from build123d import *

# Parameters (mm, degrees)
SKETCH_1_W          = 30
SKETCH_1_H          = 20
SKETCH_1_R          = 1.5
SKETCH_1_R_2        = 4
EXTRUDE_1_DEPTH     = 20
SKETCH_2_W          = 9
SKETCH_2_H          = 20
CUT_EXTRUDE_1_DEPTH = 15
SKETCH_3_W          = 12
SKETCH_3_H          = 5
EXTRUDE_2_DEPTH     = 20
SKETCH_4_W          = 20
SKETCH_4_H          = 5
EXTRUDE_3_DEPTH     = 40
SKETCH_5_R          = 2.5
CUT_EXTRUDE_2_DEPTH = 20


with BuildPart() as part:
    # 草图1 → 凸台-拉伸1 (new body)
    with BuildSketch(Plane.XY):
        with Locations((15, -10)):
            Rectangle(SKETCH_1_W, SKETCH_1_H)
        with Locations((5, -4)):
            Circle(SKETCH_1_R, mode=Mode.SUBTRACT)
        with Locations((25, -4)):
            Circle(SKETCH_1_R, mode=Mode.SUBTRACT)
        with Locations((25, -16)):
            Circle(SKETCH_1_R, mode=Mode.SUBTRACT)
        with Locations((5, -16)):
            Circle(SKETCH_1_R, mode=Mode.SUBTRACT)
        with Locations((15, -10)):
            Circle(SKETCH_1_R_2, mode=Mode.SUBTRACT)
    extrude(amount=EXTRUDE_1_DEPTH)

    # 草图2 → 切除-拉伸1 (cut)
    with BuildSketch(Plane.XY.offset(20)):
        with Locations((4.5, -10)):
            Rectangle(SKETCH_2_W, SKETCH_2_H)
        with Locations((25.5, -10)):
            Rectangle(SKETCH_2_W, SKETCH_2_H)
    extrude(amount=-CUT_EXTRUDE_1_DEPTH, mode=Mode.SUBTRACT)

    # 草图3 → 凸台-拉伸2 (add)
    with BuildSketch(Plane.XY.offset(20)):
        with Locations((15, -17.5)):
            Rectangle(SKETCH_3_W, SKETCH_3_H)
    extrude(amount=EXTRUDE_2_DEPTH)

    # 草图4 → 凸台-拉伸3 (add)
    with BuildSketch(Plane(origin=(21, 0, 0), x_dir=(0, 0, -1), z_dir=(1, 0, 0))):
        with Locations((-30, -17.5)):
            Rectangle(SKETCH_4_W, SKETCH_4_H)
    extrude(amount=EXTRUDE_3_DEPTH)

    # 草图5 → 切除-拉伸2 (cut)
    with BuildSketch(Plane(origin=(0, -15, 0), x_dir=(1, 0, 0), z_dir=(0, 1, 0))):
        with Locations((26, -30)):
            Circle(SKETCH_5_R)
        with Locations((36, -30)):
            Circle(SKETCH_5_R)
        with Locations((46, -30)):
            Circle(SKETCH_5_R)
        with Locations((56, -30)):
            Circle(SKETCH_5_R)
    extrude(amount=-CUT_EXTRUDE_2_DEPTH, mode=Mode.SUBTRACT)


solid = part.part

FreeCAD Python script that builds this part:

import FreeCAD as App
import Part
import Sketcher
Q = App.Units.Quantity

doc = App.newDocument("Part")
body = doc.addObject("PartDesign::Body", "Body")

# Sketch on XY plane
sketch1 = body.newObject("Sketcher::SketchObject", "Sketch")
sketch1.AttachmentSupport = (doc.getObject("XY_Plane"), [""])
sketch1.MapMode = "FlatFace"
sketch1.addGeometry([
    Part.LineSegment(App.Vector(0, 0, 0), App.Vector(0, -20, 0)),  # 0
    Part.LineSegment(App.Vector(0, -20, 0), App.Vector(30, -20, 0)),  # 1
    Part.LineSegment(App.Vector(30, -20, 0), App.Vector(30, 0, 0)),  # 2
    Part.LineSegment(App.Vector(30, 0, 0), App.Vector(0, 0, 0)),  # 3
    Part.Circle(App.Vector(5, -16, 0), App.Vector(0, 0, 1), 1.5),  # 4
    Part.Circle(App.Vector(25, -16, 0), App.Vector(0, 0, 1), 1.5),  # 5
    Part.Circle(App.Vector(5, -4, 0), App.Vector(0, 0, 1), 1.5),  # 6
    Part.Circle(App.Vector(15, -10, 0), App.Vector(0, 0, 1), 4),  # 7
    Part.Circle(App.Vector(25, -4, 0), App.Vector(0, 0, 1), 1.5),  # 8
], False)
sketch1.addConstraint([
    Sketcher.Constraint("Coincident", 0, 2, 1, 1),
    Sketcher.Constraint("Coincident", 1, 2, 2, 1),
    Sketcher.Constraint("Coincident", 2, 2, 3, 1),
    Sketcher.Constraint("Coincident", 3, 2, 0, 1),
    Sketcher.Constraint("Vertical", 0),
    Sketcher.Constraint("Horizontal", 1),
    Sketcher.Constraint("Vertical", 2),
    Sketcher.Constraint("Horizontal", 3),
    Sketcher.Constraint("Coincident", 3, 2, -1, 1),
    Sketcher.Constraint("Equal", 4, 5),
    Sketcher.Constraint("Equal", 5, 6),
    Sketcher.Constraint("Equal", 6, 8),
    Sketcher.Constraint("Horizontal", 4, 3, 5, 3),
    Sketcher.Constraint("Horizontal", 6, 3, 8, 3),
    Sketcher.Constraint("Vertical", 4, 3, 6, 3),
    Sketcher.Constraint("Vertical", 5, 3, 8, 3),
    Sketcher.Constraint("Diameter", 4, Q("3 mm")),
    Sketcher.Constraint("Diameter", 7, Q("8 mm")),
    Sketcher.Constraint("DistanceX", 1, 1, 1, 2, Q("30 mm")),
    Sketcher.Constraint("DistanceY", 0, 2, 0, 1, Q("20 mm")),
    Sketcher.Constraint("DistanceX", -1, 1, 4, 3, Q("5 mm")),
    Sketcher.Constraint("DistanceY", 4, 3, -1, 1, Q("16 mm")),
    Sketcher.Constraint("DistanceX", -1, 1, 5, 3, Q("25 mm")),
    Sketcher.Constraint("DistanceY", 6, 3, -1, 1, Q("4 mm")),
    Sketcher.Constraint("DistanceX", -1, 1, 7, 3, Q("15 mm")),
    Sketcher.Constraint("DistanceY", 7, 3, -1, 1, Q("10 mm")),
])
pad1 = body.newObject("PartDesign::Pad", "Pad")
pad1.Profile = sketch1
pad1.Length = 20

# Sketch on XY plane
sketch2 = body.newObject("Sketcher::SketchObject", "Sketch001")
sketch2.AttachmentSupport = (doc.getObject("XY_Plane"), [""])
sketch2.MapMode = "FlatFace"
sketch2.AttachmentOffset = App.Placement(App.Vector(0, 0, 20), App.Rotation())
sketch2.addGeometry([
    Part.LineSegment(App.Vector(0, 0, 0), App.Vector(0, -20, 0)),  # 0
    Part.LineSegment(App.Vector(0, -20, 0), App.Vector(9, -20, 0)),  # 1
    Part.LineSegment(App.Vector(9, -20, 0), App.Vector(9, 0, 0)),  # 2
    Part.LineSegment(App.Vector(9, 0, 0), App.Vector(0, 0, 0)),  # 3
    Part.LineSegment(App.Vector(21, 0, 0), App.Vector(21, -20, 0)),  # 4
    Part.LineSegment(App.Vector(21, -20, 0), App.Vector(30, -20, 0)),  # 5
    Part.LineSegment(App.Vector(30, -20, 0), App.Vector(30, 0, 0)),  # 6
    Part.LineSegment(App.Vector(30, 0, 0), App.Vector(21, 0, 0)),  # 7
], False)
sketch2.addConstraint([
    Sketcher.Constraint("Coincident", 0, 2, 1, 1),
    Sketcher.Constraint("Coincident", 1, 2, 2, 1),
    Sketcher.Constraint("Coincident", 2, 2, 3, 1),
    Sketcher.Constraint("Coincident", 3, 2, 0, 1),
    Sketcher.Constraint("Coincident", 4, 2, 5, 1),
    Sketcher.Constraint("Coincident", 5, 2, 6, 1),
    Sketcher.Constraint("Coincident", 6, 2, 7, 1),
    Sketcher.Constraint("Coincident", 7, 2, 4, 1),
    Sketcher.Constraint("Vertical", 0),
    Sketcher.Constraint("Horizontal", 1),
    Sketcher.Constraint("Vertical", 2),
    Sketcher.Constraint("Horizontal", 3),
    Sketcher.Constraint("Vertical", 4),
    Sketcher.Constraint("Horizontal", 5),
    Sketcher.Constraint("Vertical", 6),
    Sketcher.Constraint("Horizontal", 7),
    Sketcher.Constraint("Coincident", 3, 2, -1, 1),
    Sketcher.Constraint("PointOnObject", 6, 2, -1),
    Sketcher.Constraint("Horizontal", 1, 2, 4, 2),
    Sketcher.Constraint("Equal", 3, 5),
    Sketcher.Constraint("DistanceX", 1, 1, 1, 2, Q("9 mm")),
    Sketcher.Constraint("DistanceY", 0, 2, 0, 1, Q("20 mm")),
    Sketcher.Constraint("DistanceX", -1, 1, 4, 2, Q("21 mm")),
])
pocket1 = body.newObject("PartDesign::Pocket", "Pocket")
pocket1.Profile = sketch2
pocket1.Length = 15

# Sketch on XY plane
sketch3 = body.newObject("Sketcher::SketchObject", "Sketch002")
sketch3.AttachmentSupport = (doc.getObject("XY_Plane"), [""])
sketch3.MapMode = "FlatFace"
sketch3.AttachmentOffset = App.Placement(App.Vector(0, 0, 20), App.Rotation())
sketch3.addGeometry([
    Part.LineSegment(App.Vector(9, -15, 0), App.Vector(9, -20, 0)),
    Part.LineSegment(App.Vector(9, -20, 0), App.Vector(21, -20, 0)),
    Part.LineSegment(App.Vector(21, -20, 0), App.Vector(21, -15, 0)),
    Part.LineSegment(App.Vector(21, -15, 0), App.Vector(9, -15, 0)),
], False)
sketch3.addConstraint([
    Sketcher.Constraint("Coincident", 0, 2, 1, 1),
    Sketcher.Constraint("Coincident", 1, 2, 2, 1),
    Sketcher.Constraint("Coincident", 2, 2, 3, 1),
    Sketcher.Constraint("Coincident", 3, 2, 0, 1),
    Sketcher.Constraint("Vertical", 0),
    Sketcher.Constraint("Horizontal", 1),
    Sketcher.Constraint("Vertical", 2),
    Sketcher.Constraint("Horizontal", 3),
    Sketcher.Constraint("DistanceX", 1, 1, 1, 2, Q("12 mm")),
    Sketcher.Constraint("DistanceY", 0, 2, 0, 1, Q("5 mm")),
    Sketcher.Constraint("DistanceX", -1, 1, 0, 2, Q("9 mm")),
    Sketcher.Constraint("DistanceY", 0, 2, -1, 1, Q("20 mm")),
])
pad2 = body.newObject("PartDesign::Pad", "Pad001")
pad2.Profile = sketch3
pad2.Length = 20

# Sketch on YZ plane
sketch4 = body.newObject("Sketcher::SketchObject", "Sketch003")
sketch4.AttachmentSupport = (doc.getObject("YZ_Plane"), [""])
sketch4.MapMode = "FlatFace"
sketch4.AttachmentOffset = App.Placement(App.Vector(0, 0, 21), App.Rotation())
sketch4.addGeometry([
    Part.LineSegment(App.Vector(-15, 40, 0), App.Vector(-20, 40, 0)),
    Part.LineSegment(App.Vector(-20, 40, 0), App.Vector(-20, 20, 0)),
    Part.LineSegment(App.Vector(-20, 20, 0), App.Vector(-15, 20, 0)),
    Part.LineSegment(App.Vector(-15, 20, 0), App.Vector(-15, 40, 0)),
], False)
sketch4.addConstraint([
    Sketcher.Constraint("Coincident", 0, 2, 1, 1),
    Sketcher.Constraint("Coincident", 1, 2, 2, 1),
    Sketcher.Constraint("Coincident", 2, 2, 3, 1),
    Sketcher.Constraint("Coincident", 3, 2, 0, 1),
    Sketcher.Constraint("Horizontal", 0),
    Sketcher.Constraint("Vertical", 1),
    Sketcher.Constraint("Horizontal", 2),
    Sketcher.Constraint("Vertical", 3),
    Sketcher.Constraint("DistanceX", 0, 2, 0, 1, Q("5 mm")),
    Sketcher.Constraint("DistanceY", 1, 2, 1, 1, Q("20 mm")),
    Sketcher.Constraint("DistanceX", 0, 2, -1, 1, Q("20 mm")),
    Sketcher.Constraint("DistanceY", -1, 1, 0, 2, Q("40 mm")),
])
pad3 = body.newObject("PartDesign::Pad", "Pad002")
pad3.Profile = sketch4
pad3.Length = 40

# Sketch on XZ plane
sketch5 = body.newObject("Sketcher::SketchObject", "Sketch004")
sketch5.AttachmentSupport = (doc.getObject("XZ_Plane"), [""])
sketch5.MapMode = "FlatFace"
sketch5.AttachmentOffset = App.Placement(App.Vector(0, 0, 15), App.Rotation())
sketch5.addGeometry([
    Part.Circle(App.Vector(26, 30, 0), App.Vector(0, 0, 1), 2.5),
    Part.Circle(App.Vector(36, 30, 0), App.Vector(0, 0, 1), 2.5),
    Part.Circle(App.Vector(46, 30, 0), App.Vector(0, 0, 1), 2.5),
    Part.Circle(App.Vector(56, 30, 0), App.Vector(0, 0, 1), 2.5),
], False)
sketch5.addConstraint([
    Sketcher.Constraint("Equal", 0, 1),
    Sketcher.Constraint("Equal", 1, 2),
    Sketcher.Constraint("Equal", 2, 3),
    Sketcher.Constraint("Horizontal", 0, 3, 1, 3),
    Sketcher.Constraint("Horizontal", 1, 3, 2, 3),
    Sketcher.Constraint("Horizontal", 2, 3, 3, 3),
    Sketcher.Constraint("Diameter", 0, Q("5 mm")),
    Sketcher.Constraint("DistanceX", -1, 1, 0, 3, Q("26 mm")),
    Sketcher.Constraint("DistanceY", -1, 1, 0, 3, Q("30 mm")),
    Sketcher.Constraint("DistanceX", -1, 1, 1, 3, Q("36 mm")),
    Sketcher.Constraint("DistanceX", -1, 1, 2, 3, Q("46 mm")),
    Sketcher.Constraint("DistanceX", -1, 1, 3, 3, Q("56 mm")),
])
pocket2 = body.newObject("PartDesign::Pocket", "Pocket001")
pocket2.Profile = sketch5
pocket2.Length = 20
pocket2.Reversed = True

doc.recompute()
